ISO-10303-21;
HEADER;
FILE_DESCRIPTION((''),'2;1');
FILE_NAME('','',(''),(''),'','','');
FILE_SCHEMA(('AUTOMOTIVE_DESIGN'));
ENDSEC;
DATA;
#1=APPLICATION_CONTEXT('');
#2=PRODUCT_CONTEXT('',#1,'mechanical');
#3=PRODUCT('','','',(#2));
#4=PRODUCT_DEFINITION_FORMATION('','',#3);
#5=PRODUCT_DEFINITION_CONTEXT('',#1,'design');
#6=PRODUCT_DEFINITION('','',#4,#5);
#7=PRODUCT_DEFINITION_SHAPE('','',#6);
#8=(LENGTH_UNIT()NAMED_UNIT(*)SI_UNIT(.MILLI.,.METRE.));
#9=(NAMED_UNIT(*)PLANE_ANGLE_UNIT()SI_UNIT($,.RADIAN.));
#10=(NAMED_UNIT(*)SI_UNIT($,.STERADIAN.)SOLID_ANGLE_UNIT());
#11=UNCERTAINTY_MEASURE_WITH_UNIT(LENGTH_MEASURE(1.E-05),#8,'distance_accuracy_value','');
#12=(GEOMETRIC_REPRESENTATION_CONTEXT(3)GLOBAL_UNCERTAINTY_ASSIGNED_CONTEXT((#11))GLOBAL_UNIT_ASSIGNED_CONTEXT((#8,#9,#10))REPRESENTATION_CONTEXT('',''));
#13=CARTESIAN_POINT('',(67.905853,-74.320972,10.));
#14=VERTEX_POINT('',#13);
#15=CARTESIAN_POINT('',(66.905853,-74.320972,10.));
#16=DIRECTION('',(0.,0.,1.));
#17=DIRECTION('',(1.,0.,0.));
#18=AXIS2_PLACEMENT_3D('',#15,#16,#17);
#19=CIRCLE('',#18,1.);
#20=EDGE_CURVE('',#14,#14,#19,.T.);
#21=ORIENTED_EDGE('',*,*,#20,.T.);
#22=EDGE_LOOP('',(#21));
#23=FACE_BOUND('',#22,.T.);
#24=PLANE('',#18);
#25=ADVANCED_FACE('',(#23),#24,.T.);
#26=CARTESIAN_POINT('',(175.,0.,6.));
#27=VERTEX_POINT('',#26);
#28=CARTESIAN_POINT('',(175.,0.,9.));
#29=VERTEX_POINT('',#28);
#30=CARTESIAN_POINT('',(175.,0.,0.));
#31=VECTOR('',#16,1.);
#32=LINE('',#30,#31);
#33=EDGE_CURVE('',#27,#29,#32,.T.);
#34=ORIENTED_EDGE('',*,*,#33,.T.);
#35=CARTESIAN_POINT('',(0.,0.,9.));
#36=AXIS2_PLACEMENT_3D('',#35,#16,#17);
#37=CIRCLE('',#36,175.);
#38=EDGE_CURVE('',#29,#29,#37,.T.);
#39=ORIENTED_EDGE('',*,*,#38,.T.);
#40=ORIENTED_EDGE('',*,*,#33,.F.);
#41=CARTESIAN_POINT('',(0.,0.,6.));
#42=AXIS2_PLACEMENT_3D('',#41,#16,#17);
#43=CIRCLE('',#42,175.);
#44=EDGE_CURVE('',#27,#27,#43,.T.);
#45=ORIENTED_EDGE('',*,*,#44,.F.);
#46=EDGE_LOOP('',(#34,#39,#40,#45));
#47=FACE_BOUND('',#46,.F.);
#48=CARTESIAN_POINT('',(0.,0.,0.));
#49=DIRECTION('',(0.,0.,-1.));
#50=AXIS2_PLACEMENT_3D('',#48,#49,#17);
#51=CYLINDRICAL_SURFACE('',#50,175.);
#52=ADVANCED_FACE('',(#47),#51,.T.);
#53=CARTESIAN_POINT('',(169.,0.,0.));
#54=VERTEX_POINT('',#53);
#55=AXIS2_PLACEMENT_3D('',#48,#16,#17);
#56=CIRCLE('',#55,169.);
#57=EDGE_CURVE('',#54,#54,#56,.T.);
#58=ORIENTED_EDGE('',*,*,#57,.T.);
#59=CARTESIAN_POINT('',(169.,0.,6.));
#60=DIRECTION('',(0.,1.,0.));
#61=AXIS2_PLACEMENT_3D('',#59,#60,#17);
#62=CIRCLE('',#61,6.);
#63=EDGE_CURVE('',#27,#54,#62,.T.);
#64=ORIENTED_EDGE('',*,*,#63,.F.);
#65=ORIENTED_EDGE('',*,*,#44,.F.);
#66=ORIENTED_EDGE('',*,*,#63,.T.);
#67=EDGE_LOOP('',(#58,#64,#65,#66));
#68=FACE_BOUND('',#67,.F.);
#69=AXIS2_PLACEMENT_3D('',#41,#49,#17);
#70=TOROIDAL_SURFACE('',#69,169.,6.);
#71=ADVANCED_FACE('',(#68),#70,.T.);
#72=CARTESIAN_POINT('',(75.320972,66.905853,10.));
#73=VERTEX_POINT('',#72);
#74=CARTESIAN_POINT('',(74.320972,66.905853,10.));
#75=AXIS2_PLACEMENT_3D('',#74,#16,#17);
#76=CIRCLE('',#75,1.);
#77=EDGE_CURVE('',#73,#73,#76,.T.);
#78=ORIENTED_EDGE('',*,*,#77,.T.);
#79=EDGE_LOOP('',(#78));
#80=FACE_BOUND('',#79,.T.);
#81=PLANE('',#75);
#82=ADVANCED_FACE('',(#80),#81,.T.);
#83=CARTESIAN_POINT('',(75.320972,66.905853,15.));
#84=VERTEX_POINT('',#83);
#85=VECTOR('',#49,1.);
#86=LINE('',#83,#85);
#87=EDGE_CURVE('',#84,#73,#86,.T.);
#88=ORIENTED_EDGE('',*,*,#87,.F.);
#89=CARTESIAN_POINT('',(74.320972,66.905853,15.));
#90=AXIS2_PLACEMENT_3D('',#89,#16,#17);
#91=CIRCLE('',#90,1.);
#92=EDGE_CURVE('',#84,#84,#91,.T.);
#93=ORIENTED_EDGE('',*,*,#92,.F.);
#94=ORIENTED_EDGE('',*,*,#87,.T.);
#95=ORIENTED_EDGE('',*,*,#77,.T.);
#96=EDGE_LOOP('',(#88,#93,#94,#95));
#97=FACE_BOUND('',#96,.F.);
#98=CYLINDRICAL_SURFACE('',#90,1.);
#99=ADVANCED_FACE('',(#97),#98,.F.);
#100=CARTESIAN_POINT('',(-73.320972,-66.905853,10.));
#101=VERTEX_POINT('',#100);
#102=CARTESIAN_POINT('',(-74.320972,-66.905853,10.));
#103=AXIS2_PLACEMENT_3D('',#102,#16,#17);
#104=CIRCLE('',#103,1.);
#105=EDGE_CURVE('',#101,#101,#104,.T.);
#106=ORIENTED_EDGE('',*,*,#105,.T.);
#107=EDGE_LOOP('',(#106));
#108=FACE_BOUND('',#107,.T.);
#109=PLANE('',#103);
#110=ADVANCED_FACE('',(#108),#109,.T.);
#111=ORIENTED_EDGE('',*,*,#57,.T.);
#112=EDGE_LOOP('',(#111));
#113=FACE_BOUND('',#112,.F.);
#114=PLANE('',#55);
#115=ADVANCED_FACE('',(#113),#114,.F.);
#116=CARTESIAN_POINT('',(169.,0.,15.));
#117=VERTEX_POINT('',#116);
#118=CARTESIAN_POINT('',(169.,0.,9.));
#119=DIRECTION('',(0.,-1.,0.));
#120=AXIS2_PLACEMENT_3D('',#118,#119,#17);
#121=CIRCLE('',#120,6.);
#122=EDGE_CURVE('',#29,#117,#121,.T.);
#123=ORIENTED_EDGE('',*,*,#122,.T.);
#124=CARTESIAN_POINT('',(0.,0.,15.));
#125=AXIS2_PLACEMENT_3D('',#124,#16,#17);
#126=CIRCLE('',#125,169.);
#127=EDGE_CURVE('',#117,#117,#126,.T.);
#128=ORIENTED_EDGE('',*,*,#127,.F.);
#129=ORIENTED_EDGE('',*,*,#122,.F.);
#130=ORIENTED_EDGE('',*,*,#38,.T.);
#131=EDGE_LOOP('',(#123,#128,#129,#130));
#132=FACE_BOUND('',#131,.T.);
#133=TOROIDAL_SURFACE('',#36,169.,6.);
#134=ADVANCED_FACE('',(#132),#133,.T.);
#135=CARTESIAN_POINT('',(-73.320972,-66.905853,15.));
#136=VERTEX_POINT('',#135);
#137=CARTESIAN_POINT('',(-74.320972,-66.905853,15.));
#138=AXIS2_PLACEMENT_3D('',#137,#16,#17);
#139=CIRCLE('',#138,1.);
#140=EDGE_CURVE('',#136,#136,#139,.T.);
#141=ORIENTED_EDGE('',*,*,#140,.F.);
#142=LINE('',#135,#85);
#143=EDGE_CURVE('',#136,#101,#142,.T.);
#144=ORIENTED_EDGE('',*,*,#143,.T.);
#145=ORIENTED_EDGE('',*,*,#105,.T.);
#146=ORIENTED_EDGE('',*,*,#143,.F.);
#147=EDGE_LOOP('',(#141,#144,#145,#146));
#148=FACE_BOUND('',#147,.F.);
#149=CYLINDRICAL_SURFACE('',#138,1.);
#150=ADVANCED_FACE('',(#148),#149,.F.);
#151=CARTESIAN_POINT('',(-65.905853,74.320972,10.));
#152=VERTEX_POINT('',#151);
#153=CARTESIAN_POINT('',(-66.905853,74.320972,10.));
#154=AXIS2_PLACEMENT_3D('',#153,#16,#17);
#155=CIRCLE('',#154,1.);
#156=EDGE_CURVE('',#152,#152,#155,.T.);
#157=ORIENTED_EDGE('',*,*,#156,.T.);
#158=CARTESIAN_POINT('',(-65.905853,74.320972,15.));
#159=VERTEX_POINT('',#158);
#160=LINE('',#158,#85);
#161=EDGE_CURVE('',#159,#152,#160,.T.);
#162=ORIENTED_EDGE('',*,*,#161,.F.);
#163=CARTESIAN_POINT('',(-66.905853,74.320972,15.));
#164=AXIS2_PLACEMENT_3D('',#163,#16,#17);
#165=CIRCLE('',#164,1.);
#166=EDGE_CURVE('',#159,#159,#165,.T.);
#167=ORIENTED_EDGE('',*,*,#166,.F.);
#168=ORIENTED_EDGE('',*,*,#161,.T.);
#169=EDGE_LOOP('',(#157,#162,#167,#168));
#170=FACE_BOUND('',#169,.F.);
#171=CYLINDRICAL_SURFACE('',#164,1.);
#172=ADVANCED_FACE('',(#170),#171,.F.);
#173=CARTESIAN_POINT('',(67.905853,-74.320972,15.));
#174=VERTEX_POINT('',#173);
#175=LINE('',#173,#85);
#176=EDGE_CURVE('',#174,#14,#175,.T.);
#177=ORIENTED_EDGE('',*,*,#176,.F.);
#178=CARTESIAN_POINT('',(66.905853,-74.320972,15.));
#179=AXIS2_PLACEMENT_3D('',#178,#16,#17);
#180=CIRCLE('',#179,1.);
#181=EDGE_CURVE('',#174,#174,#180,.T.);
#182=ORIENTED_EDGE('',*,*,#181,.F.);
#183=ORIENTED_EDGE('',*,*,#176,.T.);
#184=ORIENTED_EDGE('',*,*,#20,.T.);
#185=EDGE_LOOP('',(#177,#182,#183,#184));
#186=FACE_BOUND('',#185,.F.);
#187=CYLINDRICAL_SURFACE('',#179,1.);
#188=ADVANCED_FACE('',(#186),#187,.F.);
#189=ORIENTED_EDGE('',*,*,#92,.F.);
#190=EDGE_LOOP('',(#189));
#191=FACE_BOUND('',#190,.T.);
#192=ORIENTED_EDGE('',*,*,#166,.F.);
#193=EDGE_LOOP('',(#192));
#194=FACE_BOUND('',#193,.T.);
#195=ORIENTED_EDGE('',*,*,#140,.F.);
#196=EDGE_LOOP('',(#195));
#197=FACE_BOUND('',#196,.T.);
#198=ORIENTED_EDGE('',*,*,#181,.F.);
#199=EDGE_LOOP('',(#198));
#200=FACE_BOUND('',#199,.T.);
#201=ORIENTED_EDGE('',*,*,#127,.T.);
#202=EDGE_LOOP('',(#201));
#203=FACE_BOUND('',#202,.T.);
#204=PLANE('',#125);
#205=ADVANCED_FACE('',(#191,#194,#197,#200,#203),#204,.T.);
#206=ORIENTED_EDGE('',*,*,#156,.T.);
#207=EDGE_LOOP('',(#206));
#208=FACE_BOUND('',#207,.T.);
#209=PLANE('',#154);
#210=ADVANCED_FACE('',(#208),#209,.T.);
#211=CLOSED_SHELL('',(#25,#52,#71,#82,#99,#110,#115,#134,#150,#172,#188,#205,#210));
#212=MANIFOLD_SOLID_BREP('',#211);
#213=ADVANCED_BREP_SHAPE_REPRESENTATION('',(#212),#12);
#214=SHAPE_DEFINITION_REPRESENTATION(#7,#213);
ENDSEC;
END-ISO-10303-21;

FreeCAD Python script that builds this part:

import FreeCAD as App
import Part
import Sketcher
Q = App.Units.Quantity


def edges_at(feature, points):
    """Names of the edges that pass closest to the given points."""
    edges = feature.Shape.Edges
    near = lambda p: min(range(len(edges)), key=lambda i: edges[i].distToShape(Part.Vertex(*p))[0])
    return sorted({f"Edge{near(p) + 1}" for p in points})

doc = App.newDocument("Part")
body = doc.addObject("PartDesign::Body", "Body")

# Sketch on XY plane
sketch1 = body.newObject("Sketcher::SketchObject", "Sketch")
sketch1.AttachmentSupport = (doc.getObject("XY_Plane"), [""])
sketch1.MapMode = "FlatFace"
sketch1.addGeometry(Part.Circle(App.Vector(0, 0, 0), App.Vector(0, 0, 1), 175), False)
sketch1.addConstraint([
    Sketcher.Constraint("Coincident", 0, 3, -1, 1),
    Sketcher.Constraint("Diameter", 0, Q("350 mm")),
])
pad1 = body.newObject("PartDesign::Pad", "Pad")
pad1.Profile = sketch1
pad1.Length = 15
doc.recompute()

fillet = body.newObject("PartDesign::Fillet", "Fillet")
fillet.Base = (pad1, edges_at(pad1, [(-175, 0, 15), (-175, 0, 0)]))
fillet.Radius = 6

# Sketch on XY plane
sketch2 = body.newObject("Sketcher::SketchObject", "Sketch001")
sketch2.AttachmentSupport = (doc.getObject("XY_Plane"), [""])
sketch2.MapMode = "FlatFace"
sketch2.AttachmentOffset = App.Placement(App.Vector(0, 0, 15), App.Rotation())
sketch2.addGeometry([
    Part.Circle(App.Vector(-66.9, 74.3, 0), App.Vector(0, 0, 1), 1),
    Part.Circle(App.Vector(-74.3, -66.9, 0), App.Vector(0, 0, 1), 1),
    Part.Circle(App.Vector(66.9, -74.3, 0), App.Vector(0, 0, 1), 1),
    Part.Circle(App.Vector(74.3, 66.9, 0), App.Vector(0, 0, 1), 1),
], False)
sketch2.addConstraint([
    Sketcher.Constraint("Equal", 0, 1),
    Sketcher.Constraint("Equal", 1, 2),
    Sketcher.Constraint("Equal", 2, 3),
    Sketcher.Constraint("Symmetric", 0, 3, 2, 3, -1, 1),
    Sketcher.Constraint("Symmetric", 1, 3, 3, 3, -1, 1),
    Sketcher.Constraint("Diameter", 0, Q("2 mm")),
    Sketcher.Constraint("DistanceY", -1, 1, 0, 3, Q("74.320972 mm")),
    Sketcher.Constraint("DistanceX", 1, 3, -1, 1, Q("74.320972 mm")),
    Sketcher.Constraint("DistanceX", 1, 3, 0, 3, Q("7.415119 mm")),
    Sketcher.Constraint("DistanceY", 2, 3, 1, 3, Q("7.415119 mm")),
])
pocket1 = body.newObject("PartDesign::Pocket", "Pocket")
pocket1.Profile = sketch2
pocket1.Length = 5

doc.recompute()
